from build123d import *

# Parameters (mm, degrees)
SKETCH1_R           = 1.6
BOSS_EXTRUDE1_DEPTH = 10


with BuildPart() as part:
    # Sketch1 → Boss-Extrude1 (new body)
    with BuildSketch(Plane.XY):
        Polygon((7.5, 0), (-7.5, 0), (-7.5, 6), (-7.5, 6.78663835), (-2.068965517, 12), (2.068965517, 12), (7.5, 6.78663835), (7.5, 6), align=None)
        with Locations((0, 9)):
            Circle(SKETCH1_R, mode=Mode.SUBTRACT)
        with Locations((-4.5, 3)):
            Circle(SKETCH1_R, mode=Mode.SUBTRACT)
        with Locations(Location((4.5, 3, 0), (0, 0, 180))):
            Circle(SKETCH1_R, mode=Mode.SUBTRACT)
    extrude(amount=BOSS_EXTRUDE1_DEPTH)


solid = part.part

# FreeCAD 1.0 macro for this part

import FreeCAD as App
import Part
import Sketcher
from FreeCAD import Vector
Q = App.Units.Quantity


def add_polygon(sketch, points):
    """Adds a closed chain of lines whose ends are joined by coincident constraints."""
    first, n = sketch.GeometryCount, len(points)
    for a, b in zip(points, points[1:] + points[:1]):
        sketch.addGeometry(Part.LineSegment(App.Vector(*a, 0), App.Vector(*b, 0)), False)
    for i in range(n):
        sketch.addConstraint(Sketcher.Constraint("Coincident", first + i, 2, first + (i + 1) % n, 1))

doc = App.newDocument("Part")
body = doc.addObject("PartDesign::Body", "Body")

# Sketch on XY plane
sketch1 = body.newObject("Sketcher::SketchObject", "Sketch")
sketch1.AttachmentSupport = (doc.getObject("XY_Plane"), [""])
sketch1.MapMode = "FlatFace"
add_polygon(sketch1, [(-7.5, 0), (7.5, 0), (7.5, 6.786638), (2.068966, 12), (-2.068966, 12), (-7.5, 6.786638)])  # lines 0-5
sketch1.addGeometry(Part.Circle(Vector(4.5, 3, 0), Vector(0, 0, 1), 1.6), False)  # 6
sketch1.addGeometry(Part.Circle(Vector(-4.5, 3, 0), Vector(0, 0, 1), 1.6), False)  # 7
sketch1.addGeometry(Part.Circle(Vector(0, 9, 0), Vector(0, 0, 1), 1.6), False)  # 8
sketch1.addConstraint(Sketcher.Constraint("Horizontal", 0))
sketch1.addConstraint(Sketcher.Constraint("Vertical", 1))
sketch1.addConstraint(Sketcher.Constraint("Horizontal", 3))
sketch1.addConstraint(Sketcher.Constraint("Vertical", 5))
sketch1.addConstraint(Sketcher.Constraint("Equal", 6, 7))
sketch1.addConstraint(Sketcher.Constraint("Equal", 7, 8))
sketch1.addConstraint(Sketcher.Constraint("Symmetric", 0, 2, 5, 2, -1, 1))
sketch1.addConstraint(Sketcher.Constraint("Symmetric", 6, 3, 7, 3, -2))
sketch1.addConstraint(Sketcher.Constraint("PointOnObject", 8, 3, -2))
sketch1.addConstraint(Sketcher.Constraint("Horizontal", 1, 2, 4, 2))
sketch1.addConstraint(Sketcher.Constraint("Equal", 2, 4))
sketch1.addConstraint(Sketcher.Constraint("Diameter", 6, Q("3.2 mm")))
sketch1.addConstraint(Sketcher.Constraint("DistanceX", 0, 1, 0, 2, Q("15 mm")))
sketch1.addConstraint(Sketcher.Constraint("DistanceY", -1, 1, 6, 3, Q("3 mm")))
sketch1.addConstraint(Sketcher.Constraint("DistanceY", -1, 1, 8, 3, Q("9 mm")))
sketch1.addConstraint(Sketcher.Constraint("DistanceY", -1, 1, 2, 2, Q("12 mm")))
sketch1.addConstraint(Sketcher.Constraint("DistanceX", 7, 3, 6, 3, Q("9 mm")))
sketch1.addConstraint(Sketcher.Constraint("Distance", 2, Q("7.528298 mm")))
sketch1.addConstraint(Sketcher.Constraint("DistanceX", 3, 2, 3, 1, Q("4.137931 mm")))
pad1 = body.newObject("PartDesign::Pad", "Pad")
pad1.Profile = sketch1
pad1.Length = 10

doc.recompute()
